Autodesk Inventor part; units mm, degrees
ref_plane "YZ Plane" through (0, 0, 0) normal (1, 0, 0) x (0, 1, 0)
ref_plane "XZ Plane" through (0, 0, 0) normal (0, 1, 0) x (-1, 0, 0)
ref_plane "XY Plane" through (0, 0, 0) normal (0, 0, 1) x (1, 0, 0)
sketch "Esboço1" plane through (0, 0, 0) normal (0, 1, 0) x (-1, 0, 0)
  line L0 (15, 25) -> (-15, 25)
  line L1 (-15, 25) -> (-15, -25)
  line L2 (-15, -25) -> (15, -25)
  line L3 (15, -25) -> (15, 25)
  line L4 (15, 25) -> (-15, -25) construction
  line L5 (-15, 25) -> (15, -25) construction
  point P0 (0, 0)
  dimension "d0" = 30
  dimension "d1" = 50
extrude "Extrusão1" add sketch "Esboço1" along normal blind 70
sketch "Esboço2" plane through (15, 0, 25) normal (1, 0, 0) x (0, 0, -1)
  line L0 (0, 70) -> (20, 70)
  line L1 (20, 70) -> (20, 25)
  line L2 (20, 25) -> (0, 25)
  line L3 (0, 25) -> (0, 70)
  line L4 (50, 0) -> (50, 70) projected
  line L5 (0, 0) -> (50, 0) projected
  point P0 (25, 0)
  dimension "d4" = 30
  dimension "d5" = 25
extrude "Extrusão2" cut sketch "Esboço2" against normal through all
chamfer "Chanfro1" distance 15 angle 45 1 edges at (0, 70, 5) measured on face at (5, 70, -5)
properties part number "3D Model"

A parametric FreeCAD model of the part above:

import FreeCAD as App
import Part
import Sketcher
Q = App.Units.Quantity


def edges_at(feature, points):
    """Names of the edges that pass closest to the given points."""
    edges = feature.Shape.Edges
    near = lambda p: min(range(len(edges)), key=lambda i: edges[i].distToShape(Part.Vertex(*p))[0])
    return sorted({f"Edge{near(p) + 1}" for p in points})

doc = App.newDocument("Part")
body = doc.addObject("PartDesign::Body", "Body")

# Sketch on XZ plane
sketch1 = doc.addObject("Sketcher::SketchObject", "Sketch")
body.addObject(sketch1)
sketch1.AttachmentSupport = (doc.XZ_Plane, [""])
sketch1.MapMode = "FlatFace"
sketch1.addGeometry(Part.LineSegment(App.Vector(-15, -25, 0), App.Vector(-15, 25, 0)), False)
sketch1.addGeometry(Part.LineSegment(App.Vector(-15, 25, 0), App.Vector(15, 25, 0)), False)
sketch1.addGeometry(Part.LineSegment(App.Vector(15, 25, 0), App.Vector(15, -25, 0)), False)
sketch1.addGeometry(Part.LineSegment(App.Vector(15, -25, 0), App.Vector(-15, -25, 0)), False)
sketch1.addConstraint(Sketcher.Constraint("Coincident", 0, 2, 1, 1))
sketch1.addConstraint(Sketcher.Constraint("Coincident", 1, 2, 2, 1))
sketch1.addConstraint(Sketcher.Constraint("Coincident", 2, 2, 3, 1))
sketch1.addConstraint(Sketcher.Constraint("Coincident", 3, 2, 0, 1))
sketch1.addConstraint(Sketcher.Constraint("Vertical", 0))
sketch1.addConstraint(Sketcher.Constraint("Horizontal", 1))
sketch1.addConstraint(Sketcher.Constraint("Vertical", 2))
sketch1.addConstraint(Sketcher.Constraint("Horizontal", 3))
sketch1.addConstraint(Sketcher.Constraint("Symmetric", 0, 2, 2, 2, -1, 1))
sketch1.addConstraint(Sketcher.Constraint("DistanceX", 1, 1, 1, 2, Q("30 mm")))
sketch1.addConstraint(Sketcher.Constraint("DistanceY", 0, 1, 0, 2, Q("50 mm")))
pad1 = doc.addObject("PartDesign::Pad", "Pad")
body.addObject(pad1)
pad1.Profile = sketch1
pad1.Length = 70
pad1.Reversed = True

# Sketch on YZ plane
sketch2 = doc.addObject("Sketcher::SketchObject", "Sketch001")
body.addObject(sketch2)
sketch2.AttachmentSupport = (doc.YZ_Plane, [""])
sketch2.MapMode = "FlatFace"
sketch2.AttachmentOffset = App.Placement(App.Vector(0, 0, 15), App.Rotation())
sketch2.addGeometry(Part.LineSegment(App.Vector(70, 5, 0), App.Vector(70, 25, 0)), False)
sketch2.addGeometry(Part.LineSegment(App.Vector(70, 25, 0), App.Vector(25, 25, 0)), False)
sketch2.addGeometry(Part.LineSegment(App.Vector(25, 25, 0), App.Vector(25, 5, 0)), False)
sketch2.addGeometry(Part.LineSegment(App.Vector(25, 5, 0), App.Vector(70, 5, 0)), False)
sketch2.addConstraint(Sketcher.Constraint("Coincident", 0, 2, 1, 1))
sketch2.addConstraint(Sketcher.Constraint("Coincident", 1, 2, 2, 1))
sketch2.addConstraint(Sketcher.Constraint("Coincident", 2, 2, 3, 1))
sketch2.addConstraint(Sketcher.Constraint("Coincident", 3, 2, 0, 1))
sketch2.addConstraint(Sketcher.Constraint("Vertical", 0))
sketch2.addConstraint(Sketcher.Constraint("Horizontal", 1))
sketch2.addConstraint(Sketcher.Constraint("Vertical", 2))
sketch2.addConstraint(Sketcher.Constraint("Horizontal", 3))
sketch2.addConstraint(Sketcher.Constraint("DistanceY", -1, 1, 0, 2, Q("25 mm")))
sketch2.addConstraint(Sketcher.Constraint("DistanceX", -1, 1, 1, 2, Q("25 mm")))
sketch2.addConstraint(Sketcher.Constraint("DistanceX", 1, 2, 1, 1, Q("45 mm")))
sketch2.addConstraint(Sketcher.Constraint("DistanceY", 0, 1, 0, 2, Q("20 mm")))
pocket1 = doc.addObject("PartDesign::Pocket", "Pocket")
body.addObject(pocket1)
pocket1.Profile = sketch2
pocket1.Type = "ThroughAll"
doc.recompute()

chamfer = doc.addObject("PartDesign::Chamfer", "Chamfer")
body.addObject(chamfer)
chamfer.Base = (pocket1, edges_at(pocket1, [(0, 70, 5)]))
chamfer.Size = 15

doc.recompute()
